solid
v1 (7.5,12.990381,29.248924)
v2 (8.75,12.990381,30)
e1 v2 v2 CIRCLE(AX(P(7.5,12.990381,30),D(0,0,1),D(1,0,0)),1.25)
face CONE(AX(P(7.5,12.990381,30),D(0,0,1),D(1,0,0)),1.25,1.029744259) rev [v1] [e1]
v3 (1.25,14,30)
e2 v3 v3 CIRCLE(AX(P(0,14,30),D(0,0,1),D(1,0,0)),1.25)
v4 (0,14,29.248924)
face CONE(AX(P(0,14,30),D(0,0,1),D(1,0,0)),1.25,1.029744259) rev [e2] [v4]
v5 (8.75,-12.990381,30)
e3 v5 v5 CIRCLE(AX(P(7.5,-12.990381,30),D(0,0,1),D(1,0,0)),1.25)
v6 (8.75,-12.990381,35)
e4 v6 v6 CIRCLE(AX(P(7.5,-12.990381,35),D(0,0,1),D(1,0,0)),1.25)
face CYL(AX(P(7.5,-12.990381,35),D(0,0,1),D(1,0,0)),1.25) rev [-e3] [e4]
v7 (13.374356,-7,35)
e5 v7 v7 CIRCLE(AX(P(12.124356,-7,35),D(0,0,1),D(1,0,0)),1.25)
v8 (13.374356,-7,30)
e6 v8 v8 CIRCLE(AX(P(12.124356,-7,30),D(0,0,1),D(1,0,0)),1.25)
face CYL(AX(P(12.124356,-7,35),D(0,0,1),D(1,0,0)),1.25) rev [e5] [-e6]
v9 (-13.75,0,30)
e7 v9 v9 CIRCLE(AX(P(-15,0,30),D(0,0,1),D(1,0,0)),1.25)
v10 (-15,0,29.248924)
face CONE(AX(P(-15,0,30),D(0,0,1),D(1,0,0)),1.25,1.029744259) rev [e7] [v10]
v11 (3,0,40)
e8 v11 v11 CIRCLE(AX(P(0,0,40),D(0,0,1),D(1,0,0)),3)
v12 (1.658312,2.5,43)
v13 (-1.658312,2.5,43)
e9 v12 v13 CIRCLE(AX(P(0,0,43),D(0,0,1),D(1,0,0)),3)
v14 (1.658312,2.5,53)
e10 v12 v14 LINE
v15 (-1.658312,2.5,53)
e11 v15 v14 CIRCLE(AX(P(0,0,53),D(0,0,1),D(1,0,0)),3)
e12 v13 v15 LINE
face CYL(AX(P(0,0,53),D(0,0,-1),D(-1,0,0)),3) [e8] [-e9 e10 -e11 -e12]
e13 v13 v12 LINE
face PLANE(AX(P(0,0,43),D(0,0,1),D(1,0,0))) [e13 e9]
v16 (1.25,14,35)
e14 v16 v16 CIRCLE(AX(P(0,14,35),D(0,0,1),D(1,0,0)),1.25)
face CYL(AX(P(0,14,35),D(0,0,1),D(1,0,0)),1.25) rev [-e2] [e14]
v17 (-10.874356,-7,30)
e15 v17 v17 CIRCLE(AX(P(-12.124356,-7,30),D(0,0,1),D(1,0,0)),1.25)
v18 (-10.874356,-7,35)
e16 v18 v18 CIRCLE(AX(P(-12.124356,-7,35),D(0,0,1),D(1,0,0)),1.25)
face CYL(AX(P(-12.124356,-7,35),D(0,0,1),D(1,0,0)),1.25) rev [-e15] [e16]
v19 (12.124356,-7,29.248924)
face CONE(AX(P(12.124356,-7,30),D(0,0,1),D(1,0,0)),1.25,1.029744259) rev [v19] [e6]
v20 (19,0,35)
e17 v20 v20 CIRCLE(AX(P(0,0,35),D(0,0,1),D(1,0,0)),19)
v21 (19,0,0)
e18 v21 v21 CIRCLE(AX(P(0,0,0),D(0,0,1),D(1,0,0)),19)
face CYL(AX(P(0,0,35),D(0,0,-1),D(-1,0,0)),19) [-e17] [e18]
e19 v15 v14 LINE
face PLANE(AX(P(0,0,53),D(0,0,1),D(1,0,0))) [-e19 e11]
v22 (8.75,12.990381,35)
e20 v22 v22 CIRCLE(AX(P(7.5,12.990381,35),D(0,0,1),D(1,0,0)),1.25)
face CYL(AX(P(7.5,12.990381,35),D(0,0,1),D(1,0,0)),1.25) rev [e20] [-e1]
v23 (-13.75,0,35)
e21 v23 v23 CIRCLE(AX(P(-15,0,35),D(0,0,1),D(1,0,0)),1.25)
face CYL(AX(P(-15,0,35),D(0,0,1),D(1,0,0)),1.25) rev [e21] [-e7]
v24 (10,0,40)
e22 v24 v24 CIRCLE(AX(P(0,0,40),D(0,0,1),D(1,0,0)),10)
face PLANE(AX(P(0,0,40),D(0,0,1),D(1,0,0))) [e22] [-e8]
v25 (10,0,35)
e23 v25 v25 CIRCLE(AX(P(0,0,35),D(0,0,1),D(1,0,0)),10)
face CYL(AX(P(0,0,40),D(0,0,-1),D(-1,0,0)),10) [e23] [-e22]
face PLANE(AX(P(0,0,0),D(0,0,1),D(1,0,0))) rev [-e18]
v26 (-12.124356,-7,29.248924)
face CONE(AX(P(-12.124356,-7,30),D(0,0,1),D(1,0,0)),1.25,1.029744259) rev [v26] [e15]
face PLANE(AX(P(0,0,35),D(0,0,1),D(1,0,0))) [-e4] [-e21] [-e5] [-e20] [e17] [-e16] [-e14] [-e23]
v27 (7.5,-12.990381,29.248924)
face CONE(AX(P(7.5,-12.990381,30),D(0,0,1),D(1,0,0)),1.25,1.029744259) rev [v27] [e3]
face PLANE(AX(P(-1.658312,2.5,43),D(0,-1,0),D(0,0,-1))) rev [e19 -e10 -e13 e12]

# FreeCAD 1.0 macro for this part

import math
import FreeCAD as App
import Part
import Sketcher
from FreeCAD import Vector
Q = App.Units.Quantity

doc = App.newDocument("Part")
params = doc.addObject("Spreadsheet::Sheet", "Params")
for row, (alias, value) in enumerate([
    ("sketch1_diameter", "38 mm"),
    ("pad1_length", "35 mm"),
    ("sketch2_diameter", "20 mm"),
    ("pad2_length", "5 mm"),
    ("sketch3_diameter", "6 mm"),
    ("pad3_length", "13 mm"),
    ("sketch4_radius", "3 mm"),
    ("pocket1_length", "10 mm"),
    ("sketch5_diameter", "2.5 mm"),
    ("hole_diameter", "2.5 mm"),
    ("hole_depth", "5 mm"),
], start=1):
    params.set(f"A{row}", alias)
    params.set(f"B{row}", "=" + value)
    params.setAlias(f"B{row}", alias)

body = doc.addObject("PartDesign::Body", "Body")

sketch1 = doc.addObject("Sketcher::SketchObject", "Sketch")
body.addObject(sketch1)
sketch1.AttachmentSupport = (doc.XY_Plane, [""])
sketch1.MapMode = "FlatFace"
sketch1.addGeometry(Part.Circle(Vector(0, 0, 0), Vector(0, 0, 1), 19), False)
sketch1.addConstraint([
    Sketcher.Constraint("Coincident", 0, 3, -1, 1),
    Sketcher.Constraint("Diameter", 0, Q("38 mm")),
])
sketch1.setExpression("Constraints[1]", "Params.sketch1_diameter")
pad1 = doc.addObject("PartDesign::Pad", "Pad")
body.addObject(pad1)
pad1.Profile = sketch1
pad1.setExpression("Length", "Params.pad1_length")

sketch2 = doc.addObject("Sketcher::SketchObject", "Sketch001")
body.addObject(sketch2)
sketch2.AttachmentSupport = (doc.XY_Plane, [""])
sketch2.MapMode = "FlatFace"
sketch2.AttachmentOffset = App.Placement(Vector(0, 0, 35), App.Rotation())
sketch2.addGeometry(Part.Circle(Vector(0, 0, 0), Vector(0, 0, 1), 10), False)
sketch2.addConstraint([
    Sketcher.Constraint("Coincident", 0, 3, -1, 1),
    Sketcher.Constraint("Diameter", 0, Q("20 mm")),
])
sketch2.setExpression("Constraints[1]", "Params.sketch2_diameter")
pad2 = doc.addObject("PartDesign::Pad", "Pad001")
body.addObject(pad2)
pad2.Profile = sketch2
pad2.setExpression("Length", "Params.pad2_length")

sketch3 = doc.addObject("Sketcher::SketchObject", "Sketch002")
body.addObject(sketch3)
sketch3.AttachmentSupport = (doc.XY_Plane, [""])
sketch3.MapMode = "FlatFace"
sketch3.AttachmentOffset = App.Placement(Vector(0, 0, 40), App.Rotation())
sketch3.addGeometry(Part.Circle(Vector(0, 0, 0), Vector(0, 0, 1), 3), False)
sketch3.addConstraint([
    Sketcher.Constraint("Coincident", 0, 3, -1, 1),
    Sketcher.Constraint("Diameter", 0, Q("6 mm")),
])
sketch3.setExpression("Constraints[1]", "Params.sketch3_diameter")
pad3 = doc.addObject("PartDesign::Pad", "Pad002")
body.addObject(pad3)
pad3.Profile = sketch3
pad3.setExpression("Length", "Params.pad3_length")

sketch4 = doc.addObject("Sketcher::SketchObject", "Sketch003")
body.addObject(sketch4)
sketch4.AttachmentSupport = (doc.XY_Plane, [""])
sketch4.MapMode = "FlatFace"
sketch4.AttachmentOffset = App.Placement(Vector(0, 0, 43), App.Rotation())
sketch4.addGeometry([
    Part.LineSegment(Vector(-1.7, 2.5, 0), Vector(1.7, 2.5, 0)),
    Part.ArcOfCircle(Part.Circle(Vector(0, 0, 0), Vector(0, 0, 1), 3), math.radians(56), math.radians(124)),
], False)
sketch4.addConstraint([
    Sketcher.Constraint("Coincident", 0, 1, 1, 2),
    Sketcher.Constraint("Coincident", 1, 1, 0, 2),
    Sketcher.Constraint("Horizontal", 0),
    Sketcher.Constraint("Coincident", 1, 3, -1, 1),
    Sketcher.Constraint("Radius", 1, Q("3 mm")),
    Sketcher.Constraint("DistanceY", -1, 1, 0, 1, Q("2.5 mm")),
])
sketch4.setExpression("Constraints[4]", "Params.sketch4_radius")
pocket1 = doc.addObject("PartDesign::Pocket", "Pocket")
body.addObject(pocket1)
pocket1.Profile = sketch4
pocket1.setExpression("Length", "Params.pocket1_length")
pocket1.Reversed = True

sketch5 = doc.addObject("Sketcher::SketchObject", "Sketch004")
body.addObject(sketch5)
sketch5.AttachmentSupport = (doc.XY_Plane, [""])
sketch5.MapMode = "FlatFace"
sketch5.AttachmentOffset = App.Placement(Vector(0, 0, 35), App.Rotation())
sketch5.addGeometry([
    Part.Circle(Vector(-15, 0, 0), Vector(0, 0, 1), 1.2),
    Part.Circle(Vector(0, 14, 0), Vector(0, 0, 1), 1.2),
    Part.Circle(Vector(7.5, 13, 0), Vector(0, 0, 1), 1.2),
    Part.Circle(Vector(12.1, -7, 0), Vector(0, 0, 1), 1.2),
    Part.Circle(Vector(7.5, -13, 0), Vector(0, 0, 1), 1.2),
    Part.Circle(Vector(-12.1, -7, 0), Vector(0, 0, 1), 1.2),
], False)
sketch5.addConstraint([
    Sketcher.Constraint("Equal", 0, 1),
    Sketcher.Constraint("Equal", 1, 2),
    Sketcher.Constraint("Equal", 2, 3),
    Sketcher.Constraint("Equal", 3, 4),
    Sketcher.Constraint("Equal", 4, 5),
    Sketcher.Constraint("Symmetric", 3, 3, 5, 3, -2),
    Sketcher.Constraint("Symmetric", 2, 3, 4, 3, -1),
    Sketcher.Constraint("PointOnObject", 0, 3, -1),
    Sketcher.Constraint("PointOnObject", 1, 3, -2),
    Sketcher.Constraint("Diameter", 0, Q("2.5 mm")),
    Sketcher.Constraint("DistanceX", 0, 3, -1, 1, Q("15 mm")),
    Sketcher.Constraint("DistanceY", -1, 1, 1, 3, Q("14 mm")),
    Sketcher.Constraint("DistanceY", 3, 3, -1, 1, Q("7 mm")),
    Sketcher.Constraint("DistanceX", -1, 1, 2, 3, Q("7.5 mm")),
    Sketcher.Constraint("DistanceY", -1, 1, 2, 3, Q("12.990381 mm")),
    Sketcher.Constraint("DistanceX", 5, 3, 3, 3, Q("24.248711 mm")),
])
sketch5.setExpression("Constraints[9]", "Params.sketch5_diameter")
doc.recompute()
hole = doc.addObject("PartDesign::Hole", "Hole")
body.addObject(hole)
hole.Profile = sketch5
hole.ThreadType = "None"
hole.setExpression("Diameter", "Params.hole_diameter")
hole.DepthType = "Dimension"
hole.setExpression("Depth", "Params.hole_depth")
hole.DrillPoint = "Angled"
hole.DrillPointAngle = 118

doc.recompute()
